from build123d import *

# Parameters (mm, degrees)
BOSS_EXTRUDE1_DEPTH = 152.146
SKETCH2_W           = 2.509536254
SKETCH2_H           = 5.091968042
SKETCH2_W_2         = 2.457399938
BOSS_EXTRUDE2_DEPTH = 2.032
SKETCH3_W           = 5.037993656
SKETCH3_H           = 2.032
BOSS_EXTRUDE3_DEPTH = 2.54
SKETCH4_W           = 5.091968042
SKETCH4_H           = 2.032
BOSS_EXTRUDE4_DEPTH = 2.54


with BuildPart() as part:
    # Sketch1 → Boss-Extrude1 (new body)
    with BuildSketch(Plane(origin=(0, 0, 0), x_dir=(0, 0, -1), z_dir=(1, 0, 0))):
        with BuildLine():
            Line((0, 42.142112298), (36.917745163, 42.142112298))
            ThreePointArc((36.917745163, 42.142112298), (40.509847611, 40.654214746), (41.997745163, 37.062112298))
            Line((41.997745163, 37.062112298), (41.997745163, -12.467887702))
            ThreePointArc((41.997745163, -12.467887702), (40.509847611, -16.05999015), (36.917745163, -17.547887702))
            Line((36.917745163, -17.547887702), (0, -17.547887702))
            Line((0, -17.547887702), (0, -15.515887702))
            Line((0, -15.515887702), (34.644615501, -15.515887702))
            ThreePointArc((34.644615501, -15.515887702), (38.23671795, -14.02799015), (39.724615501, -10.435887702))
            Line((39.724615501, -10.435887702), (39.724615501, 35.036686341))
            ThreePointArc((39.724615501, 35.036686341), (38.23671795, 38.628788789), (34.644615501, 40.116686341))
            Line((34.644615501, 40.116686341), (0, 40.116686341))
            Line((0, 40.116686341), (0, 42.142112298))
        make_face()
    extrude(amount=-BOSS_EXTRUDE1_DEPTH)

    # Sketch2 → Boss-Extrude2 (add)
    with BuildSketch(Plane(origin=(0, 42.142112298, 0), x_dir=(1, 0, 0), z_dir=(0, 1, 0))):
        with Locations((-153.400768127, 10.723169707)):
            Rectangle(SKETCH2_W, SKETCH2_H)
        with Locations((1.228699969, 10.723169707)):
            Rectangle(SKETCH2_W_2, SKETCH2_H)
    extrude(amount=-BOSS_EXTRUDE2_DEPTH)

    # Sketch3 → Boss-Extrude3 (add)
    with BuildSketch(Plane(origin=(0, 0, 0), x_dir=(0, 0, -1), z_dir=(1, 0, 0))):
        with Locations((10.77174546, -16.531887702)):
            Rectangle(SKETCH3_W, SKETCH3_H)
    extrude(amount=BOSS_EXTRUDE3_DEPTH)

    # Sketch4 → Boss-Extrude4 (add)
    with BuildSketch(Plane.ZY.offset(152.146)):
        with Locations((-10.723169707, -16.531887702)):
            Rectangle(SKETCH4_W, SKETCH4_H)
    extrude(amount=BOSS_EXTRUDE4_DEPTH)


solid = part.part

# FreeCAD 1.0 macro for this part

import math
import FreeCAD as App
import Part
import Sketcher
Q = App.Units.Quantity

doc = App.newDocument("Part")
body = doc.addObject("PartDesign::Body", "Body")

# Sketch on YZ plane
sketch1 = doc.addObject("Sketcher::SketchObject", "Sketch")
body.addObject(sketch1)
sketch1.AttachmentSupport = (doc.YZ_Plane, [""])
sketch1.MapMode = "FlatFace"
sketch1.addGeometry([
    Part.LineSegment(App.Vector(42.142112, -36.917745, 0), App.Vector(42.142112, 0, 0)),  # 0
    Part.LineSegment(App.Vector(42.142112, 0, 0), App.Vector(40.116686, 0, 0)),  # 1
    Part.LineSegment(App.Vector(40.116686, 0, 0), App.Vector(40.116686, -34.644616, 0)),  # 2
    Part.ArcOfCircle(Part.Circle(App.Vector(35.036686, -34.644616, 0), App.Vector(0, 0, 1), 5.08), math.radians(-90), math.radians(0)),  # 3
    Part.LineSegment(App.Vector(35.036686, -39.724616, 0), App.Vector(-10.435888, -39.724616, 0)),  # 4
    Part.ArcOfCircle(Part.Circle(App.Vector(-10.435888, -34.644616, 0), App.Vector(0, 0, 1), 5.08), math.radians(180), math.radians(270)),  # 5
    Part.LineSegment(App.Vector(-15.515888, -34.644616, 0), App.Vector(-15.515888, 0, 0)),  # 6
    Part.LineSegment(App.Vector(-15.515888, 0, 0), App.Vector(-17.547888, 0, 0)),  # 7
    Part.LineSegment(App.Vector(-17.547888, 0, 0), App.Vector(-17.547888, -36.917745, 0)),  # 8
    Part.ArcOfCircle(Part.Circle(App.Vector(-12.467888, -36.917745, 0), App.Vector(0, 0, 1), 5.08), math.radians(-180), math.radians(-90)),  # 9
    Part.LineSegment(App.Vector(-12.467888, -41.997745, 0), App.Vector(37.062112, -41.997745, 0)),  # 10
    Part.ArcOfCircle(Part.Circle(App.Vector(37.062112, -36.917745, 0), App.Vector(0, 0, 1), 5.08), math.radians(-90), math.radians(0)),  # 11
], False)
sketch1.addConstraint([
    Sketcher.Constraint("Coincident", 0, 2, 1, 1),
    Sketcher.Constraint("Coincident", 1, 2, 2, 1),
    Sketcher.Constraint("Tangent", 2, 2, 3, 2),
    Sketcher.Constraint("Tangent", 3, 1, 4, 1),
    Sketcher.Constraint("Tangent", 4, 2, 5, 2),
    Sketcher.Constraint("Tangent", 5, 1, 6, 1),
    Sketcher.Constraint("Coincident", 6, 2, 7, 1),
    Sketcher.Constraint("Coincident", 7, 2, 8, 1),
    Sketcher.Constraint("Tangent", 8, 2, 9, 1),
    Sketcher.Constraint("Tangent", 9, 2, 10, 1),
    Sketcher.Constraint("Tangent", 10, 2, 11, 1),
    Sketcher.Constraint("Tangent", 11, 2, 0, 1),
    Sketcher.Constraint("Vertical", 0),
    Sketcher.Constraint("Horizontal", 1),
    Sketcher.Constraint("Vertical", 2),
    Sketcher.Constraint("Horizontal", 4),
    Sketcher.Constraint("Vertical", 6),
    Sketcher.Constraint("Horizontal", 7),
    Sketcher.Constraint("Vertical", 8),
    Sketcher.Constraint("Horizontal", 10),
    Sketcher.Constraint("Equal", 3, 5),
    Sketcher.Constraint("Equal", 5, 9),
    Sketcher.Constraint("Equal", 9, 11),
    Sketcher.Constraint("PointOnObject", 0, 2, -1),
    Sketcher.Constraint("PointOnObject", 6, 2, -1),
    Sketcher.Constraint("Radius", 3, Q("0.2 in")),
    Sketcher.Constraint("DistanceX", 7, 2, 7, 1, Q("0.08 in")),
    Sketcher.Constraint("DistanceX", 10, 1, 10, 2, Q("1.95 in")),
    Sketcher.Constraint("DistanceX", 1, 2, 1, 1, Q("2.025426 mm")),
    Sketcher.Constraint("DistanceY", 0, 1, 0, 2, Q("36.917745 mm")),
    Sketcher.Constraint("DistanceY", 2, 2, 2, 1, Q("34.644616 mm")),
    Sketcher.Constraint("DistanceX", -1, 1, 3, 3, Q("35.036686 mm")),
])
pad1 = doc.addObject("PartDesign::Pad", "Pad")
body.addObject(pad1)
pad1.Profile = sketch1
pad1.Length = Q("5.99 in")
pad1.Reversed = True

# Sketch on XZ plane
sketch2 = doc.addObject("Sketcher::SketchObject", "Sketch001")
body.addObject(sketch2)
sketch2.AttachmentSupport = (doc.XZ_Plane, [""])
sketch2.MapMode = "FlatFace"
sketch2.AttachmentOffset = App.Placement(App.Vector(0, 0, -42.142112), App.Rotation())
sketch2.addGeometry([
    Part.LineSegment(App.Vector(-154.655536, -13.269154, 0), App.Vector(-154.655536, -8.177186, 0)),  # 0
    Part.LineSegment(App.Vector(-154.655536, -8.177186, 0), App.Vector(-152.146, -8.177186, 0)),  # 1
    Part.LineSegment(App.Vector(-152.146, -8.177186, 0), App.Vector(-152.146, -13.269154, 0)),  # 2
    Part.LineSegment(App.Vector(-152.146, -13.269154, 0), App.Vector(-154.655536, -13.269154, 0)),  # 3
    Part.LineSegment(App.Vector(0, -13.269154, 0), App.Vector(0, -8.177186, 0)),  # 4
    Part.LineSegment(App.Vector(0, -8.177186, 0), App.Vector(2.4574, -8.177186, 0)),  # 5
    Part.LineSegment(App.Vector(2.4574, -8.177186, 0), App.Vector(2.4574, -13.269154, 0)),  # 6
    Part.LineSegment(App.Vector(2.4574, -13.269154, 0), App.Vector(0, -13.269154, 0)),  # 7
], False)
sketch2.addConstraint([
    Sketcher.Constraint("Coincident", 0, 2, 1, 1),
    Sketcher.Constraint("Coincident", 1, 2, 2, 1),
    Sketcher.Constraint("Coincident", 2, 2, 3, 1),
    Sketcher.Constraint("Coincident", 3, 2, 0, 1),
    Sketcher.Constraint("Coincident", 4, 2, 5, 1),
    Sketcher.Constraint("Coincident", 5, 2, 6, 1),
    Sketcher.Constraint("Coincident", 6, 2, 7, 1),
    Sketcher.Constraint("Coincident", 7, 2, 4, 1),
    Sketcher.Constraint("Vertical", 0),
    Sketcher.Constraint("Horizontal", 1),
    Sketcher.Constraint("Vertical", 2),
    Sketcher.Constraint("Horizontal", 3),
    Sketcher.Constraint("Vertical", 4),
    Sketcher.Constraint("Horizontal", 5),
    Sketcher.Constraint("Vertical", 6),
    Sketcher.Constraint("Horizontal", 7),
    Sketcher.Constraint("PointOnObject", 4, 2, -2),
    Sketcher.Constraint("Horizontal", 1, 2, 4, 2),
    Sketcher.Constraint("Horizontal", 3, 2, 6, 2),
    Sketcher.Constraint("DistanceX", 1, 2, -1, 1, Q("5.99 in")),
    Sketcher.Constraint("DistanceX", 5, 1, 5, 2, Q("2.4574 mm")),
    Sketcher.Constraint("DistanceY", 0, 1, 0, 2, Q("5.091968 mm")),
    Sketcher.Constraint("DistanceX", 1, 1, 1, 2, Q("2.509536 mm")),
    Sketcher.Constraint("DistanceY", 0, 2, -1, 1, Q("8.177186 mm")),
])
pad2 = doc.addObject("PartDesign::Pad", "Pad001")
body.addObject(pad2)
pad2.Profile = sketch2
pad2.Length = Q("0.08 in")

# Sketch on YZ plane
sketch3 = doc.addObject("Sketcher::SketchObject", "Sketch002")
body.addObject(sketch3)
sketch3.AttachmentSupport = (doc.YZ_Plane, [""])
sketch3.MapMode = "FlatFace"
sketch3.addGeometry([
    Part.LineSegment(App.Vector(-15.515888, -8.252749, 0), App.Vector(-17.547888, -8.252749, 0)),
    Part.LineSegment(App.Vector(-17.547888, -8.252749, 0), App.Vector(-17.547888, -13.290742, 0)),
    Part.LineSegment(App.Vector(-17.547888, -13.290742, 0), App.Vector(-15.515888, -13.290742, 0)),
    Part.LineSegment(App.Vector(-15.515888, -13.290742, 0), App.Vector(-15.515888, -8.252749, 0)),
], False)
sketch3.addConstraint([
    Sketcher.Constraint("Coincident", 0, 2, 1, 1),
    Sketcher.Constraint("Coincident", 1, 2, 2, 1),
    Sketcher.Constraint("Coincident", 2, 2, 3, 1),
    Sketcher.Constraint("Coincident", 3, 2, 0, 1),
    Sketcher.Constraint("Horizontal", 0),
    Sketcher.Constraint("Vertical", 1),
    Sketcher.Constraint("Horizontal", 2),
    Sketcher.Constraint("Vertical", 3),
    Sketcher.Constraint("DistanceX", 0, 2, 0, 1, Q("0.08 in")),
    Sketcher.Constraint("DistanceY", 1, 2, 1, 1, Q("5.037994 mm")),
    Sketcher.Constraint("DistanceY", 0, 2, -1, 1, Q("8.252749 mm")),
    Sketcher.Constraint("DistanceX", 0, 2, -1, 1, Q("17.547888 mm")),
])
pad3 = doc.addObject("PartDesign::Pad", "Pad002")
body.addObject(pad3)
pad3.Profile = sketch3
pad3.Length = Q("0.1 in")

# Sketch on YZ plane
sketch4 = doc.addObject("Sketcher::SketchObject", "Sketch003")
body.addObject(sketch4)
sketch4.AttachmentSupport = (doc.YZ_Plane, [""])
sketch4.MapMode = "FlatFace"
sketch4.AttachmentOffset = App.Placement(App.Vector(0, 0, -5.99 * 25.4), App.Rotation())
sketch4.addGeometry([
    Part.LineSegment(App.Vector(-15.515888, -13.269154, 0), App.Vector(-17.547888, -13.269154, 0)),
    Part.LineSegment(App.Vector(-17.547888, -13.269154, 0), App.Vector(-17.547888, -8.177186, 0)),
    Part.LineSegment(App.Vector(-17.547888, -8.177186, 0), App.Vector(-15.515888, -8.177186, 0)),
    Part.LineSegment(App.Vector(-15.515888, -8.177186, 0), App.Vector(-15.515888, -13.269154, 0)),
], False)
sketch4.addConstraint([
    Sketcher.Constraint("Coincident", 0, 2, 1, 1),
    Sketcher.Constraint("Coincident", 1, 2, 2, 1),
    Sketcher.Constraint("Coincident", 2, 2, 3, 1),
    Sketcher.Constraint("Coincident", 3, 2, 0, 1),
    Sketcher.Constraint("Horizontal", 0),
    Sketcher.Constraint("Vertical", 1),
    Sketcher.Constraint("Horizontal", 2),
    Sketcher.Constraint("Vertical", 3),
    Sketcher.Constraint("DistanceX", 0, 2, 0, 1, Q("0.08 in")),
    Sketcher.Constraint("DistanceY", 1, 1, 1, 2, Q("5.091968 mm")),
    Sketcher.Constraint("DistanceX", 0, 2, -1, 1, Q("17.547888 mm")),
    Sketcher.Constraint("DistanceY", 0, 2, -1, 1, Q("13.269154 mm")),
])
pad4 = doc.addObject("PartDesign::Pad", "Pad003")
body.addObject(pad4)
pad4.Profile = sketch4
pad4.Length = Q("0.1 in")
pad4.Reversed = True

doc.recompute()
